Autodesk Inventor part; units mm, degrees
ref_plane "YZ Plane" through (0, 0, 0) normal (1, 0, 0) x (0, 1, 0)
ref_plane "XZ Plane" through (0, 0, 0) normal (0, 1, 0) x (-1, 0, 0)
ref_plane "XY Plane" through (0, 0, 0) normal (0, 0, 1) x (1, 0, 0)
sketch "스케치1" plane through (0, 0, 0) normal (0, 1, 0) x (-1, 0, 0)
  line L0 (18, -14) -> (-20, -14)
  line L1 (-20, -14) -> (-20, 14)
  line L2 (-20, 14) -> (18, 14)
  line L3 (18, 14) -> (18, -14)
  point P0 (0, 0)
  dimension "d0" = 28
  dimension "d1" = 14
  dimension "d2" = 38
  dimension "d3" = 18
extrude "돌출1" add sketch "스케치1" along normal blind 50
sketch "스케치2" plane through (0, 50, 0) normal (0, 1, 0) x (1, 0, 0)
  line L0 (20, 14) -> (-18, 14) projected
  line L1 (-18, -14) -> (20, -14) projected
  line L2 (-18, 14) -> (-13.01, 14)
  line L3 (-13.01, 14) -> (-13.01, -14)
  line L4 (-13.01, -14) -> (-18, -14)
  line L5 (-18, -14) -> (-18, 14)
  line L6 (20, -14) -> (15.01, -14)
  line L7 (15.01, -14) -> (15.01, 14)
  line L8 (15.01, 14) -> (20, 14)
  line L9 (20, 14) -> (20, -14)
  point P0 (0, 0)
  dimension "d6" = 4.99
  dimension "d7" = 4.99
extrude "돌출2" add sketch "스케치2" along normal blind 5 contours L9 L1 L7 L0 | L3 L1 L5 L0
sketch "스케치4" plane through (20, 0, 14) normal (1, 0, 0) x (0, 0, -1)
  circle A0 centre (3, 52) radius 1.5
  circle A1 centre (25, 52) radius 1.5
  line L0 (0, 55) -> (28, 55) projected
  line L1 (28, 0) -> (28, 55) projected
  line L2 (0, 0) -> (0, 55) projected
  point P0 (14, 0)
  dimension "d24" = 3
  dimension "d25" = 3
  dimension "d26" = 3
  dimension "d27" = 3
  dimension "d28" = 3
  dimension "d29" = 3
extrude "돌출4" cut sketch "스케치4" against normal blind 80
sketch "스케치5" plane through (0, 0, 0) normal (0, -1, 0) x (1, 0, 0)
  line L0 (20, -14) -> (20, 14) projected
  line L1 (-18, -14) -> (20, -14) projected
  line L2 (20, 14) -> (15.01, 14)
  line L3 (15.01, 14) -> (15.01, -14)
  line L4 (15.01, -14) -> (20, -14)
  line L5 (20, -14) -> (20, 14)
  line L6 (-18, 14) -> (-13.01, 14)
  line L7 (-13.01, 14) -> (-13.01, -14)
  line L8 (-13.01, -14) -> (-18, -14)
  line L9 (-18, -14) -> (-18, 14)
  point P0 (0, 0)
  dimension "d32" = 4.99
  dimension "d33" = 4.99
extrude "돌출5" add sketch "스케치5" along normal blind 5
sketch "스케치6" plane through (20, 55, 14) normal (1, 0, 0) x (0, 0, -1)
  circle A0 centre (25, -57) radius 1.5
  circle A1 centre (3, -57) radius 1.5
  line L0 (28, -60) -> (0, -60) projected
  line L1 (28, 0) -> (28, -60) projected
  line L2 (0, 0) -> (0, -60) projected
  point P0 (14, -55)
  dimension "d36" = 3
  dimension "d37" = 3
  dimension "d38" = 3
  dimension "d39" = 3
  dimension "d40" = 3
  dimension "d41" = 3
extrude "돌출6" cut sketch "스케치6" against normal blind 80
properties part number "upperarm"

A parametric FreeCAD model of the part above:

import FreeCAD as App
import Part
import Sketcher

V = App.Vector
Q = App.Units.Quantity

doc = App.newDocument("Part")
body = doc.addObject("PartDesign::Body", "Body")

# Sketch on XZ plane
sketch1 = body.newObject("Sketcher::SketchObject", "Sketch")
sketch1.AttachmentSupport = (doc.getObject("XZ_Plane"), [""])
sketch1.MapMode = "FlatFace"
sketch1.addGeometry(Part.LineSegment(V(20, -14, 0), V(-18, -14, 0)), False)
sketch1.addGeometry(Part.LineSegment(V(-18, -14, 0), V(-18, 14, 0)), False)
sketch1.addGeometry(Part.LineSegment(V(-18, 14, 0), V(20, 14, 0)), False)
sketch1.addGeometry(Part.LineSegment(V(20, 14, 0), V(20, -14, 0)), False)
sketch1.addConstraint(Sketcher.Constraint("Coincident", 0, 2, 1, 1))
sketch1.addConstraint(Sketcher.Constraint("Coincident", 1, 2, 2, 1))
sketch1.addConstraint(Sketcher.Constraint("Coincident", 2, 2, 3, 1))
sketch1.addConstraint(Sketcher.Constraint("Coincident", 3, 2, 0, 1))
sketch1.addConstraint(Sketcher.Constraint("Horizontal", 0))
sketch1.addConstraint(Sketcher.Constraint("Vertical", 1))
sketch1.addConstraint(Sketcher.Constraint("Horizontal", 2))
sketch1.addConstraint(Sketcher.Constraint("Vertical", 3))
sketch1.addConstraint(Sketcher.Constraint("DistanceX", 0, 2, 0, 1, Q("38 mm")))
sketch1.addConstraint(Sketcher.Constraint("DistanceY", 1, 1, 1, 2, Q("28 mm")))
sketch1.addConstraint(Sketcher.Constraint("DistanceX", 0, 2, -1, 1, Q("18 mm")))
sketch1.addConstraint(Sketcher.Constraint("DistanceY", 0, 2, -1, 1, Q("14 mm")))
pad1 = body.newObject("PartDesign::Pad", "Pad")
pad1.Profile = sketch1
pad1.Length = 50
pad1.Reversed = True

# Sketch on XZ plane
sketch2 = body.newObject("Sketcher::SketchObject", "Sketch001")
sketch2.AttachmentSupport = (doc.getObject("XZ_Plane"), [""])
sketch2.MapMode = "FlatFace"
sketch2.AttachmentOffset = App.Placement(V(0, 0, -50), App.Rotation())
sketch2.addGeometry(Part.LineSegment(V(20, 14, 0), V(20, -14, 0)), False)
sketch2.addGeometry(Part.LineSegment(V(20, -14, 0), V(15.01, -14, 0)), False)
sketch2.addGeometry(Part.LineSegment(V(15.01, -14, 0), V(15.01, 14, 0)), False)
sketch2.addGeometry(Part.LineSegment(V(15.01, 14, 0), V(20, 14, 0)), False)
sketch2.addGeometry(Part.LineSegment(V(-13.01, 14, 0), V(-13.01, -14, 0)), False)
sketch2.addGeometry(Part.LineSegment(V(-13.01, -14, 0), V(-18, -14, 0)), False)
sketch2.addGeometry(Part.LineSegment(V(-18, -14, 0), V(-18, 14, 0)), False)
sketch2.addGeometry(Part.LineSegment(V(-18, 14, 0), V(-13.01, 14, 0)), False)
sketch2.addConstraint(Sketcher.Constraint("Coincident", 0, 2, 1, 1))
sketch2.addConstraint(Sketcher.Constraint("Coincident", 1, 2, 2, 1))
sketch2.addConstraint(Sketcher.Constraint("Coincident", 2, 2, 3, 1))
sketch2.addConstraint(Sketcher.Constraint("Coincident", 3, 2, 0, 1))
sketch2.addConstraint(Sketcher.Constraint("Coincident", 4, 2, 5, 1))
sketch2.addConstraint(Sketcher.Constraint("Coincident", 5, 2, 6, 1))
sketch2.addConstraint(Sketcher.Constraint("Coincident", 6, 2, 7, 1))
sketch2.addConstraint(Sketcher.Constraint("Coincident", 7, 2, 4, 1))
sketch2.addConstraint(Sketcher.Constraint("Vertical", 0))
sketch2.addConstraint(Sketcher.Constraint("Horizontal", 1))
sketch2.addConstraint(Sketcher.Constraint("Vertical", 2))
sketch2.addConstraint(Sketcher.Constraint("Horizontal", 3))
sketch2.addConstraint(Sketcher.Constraint("Vertical", 4))
sketch2.addConstraint(Sketcher.Constraint("Horizontal", 5))
sketch2.addConstraint(Sketcher.Constraint("Vertical", 6))
sketch2.addConstraint(Sketcher.Constraint("Horizontal", 7))
sketch2.addConstraint(Sketcher.Constraint("Horizontal", 1, 2, 4, 2))
sketch2.addConstraint(Sketcher.Constraint("Horizontal", 3, 2, 6, 2))
sketch2.addConstraint(Sketcher.Constraint("Equal", 3, 5))
sketch2.addConstraint(Sketcher.Constraint("DistanceX", 1, 2, 1, 1, Q("4.99 mm")))
sketch2.addConstraint(Sketcher.Constraint("DistanceY", 0, 2, 0, 1, Q("28 mm")))
sketch2.addConstraint(Sketcher.Constraint("DistanceX", -1, 1, 0, 2, Q("20 mm")))
sketch2.addConstraint(Sketcher.Constraint("DistanceY", 0, 2, -1, 1, Q("14 mm")))
sketch2.addConstraint(Sketcher.Constraint("DistanceX", 5, 2, -1, 1, Q("18 mm")))
pad2 = body.newObject("PartDesign::Pad", "Pad001")
pad2.Profile = sketch2
pad2.Length = 5
pad2.Reversed = True

# Sketch on YZ plane
sketch3 = body.newObject("Sketcher::SketchObject", "Sketch002")
sketch3.AttachmentSupport = (doc.getObject("YZ_Plane"), [""])
sketch3.MapMode = "FlatFace"
sketch3.AttachmentOffset = App.Placement(V(0, 0, 20), App.Rotation())
sketch3.addGeometry(Part.Circle(V(52, 11, 0), V(0, 0, 1), 1.5), False)
sketch3.addGeometry(Part.Circle(V(52, -11, 0), V(0, 0, 1), 1.5), False)
sketch3.addConstraint(Sketcher.Constraint("Equal", 0, 1))
sketch3.addConstraint(Sketcher.Constraint("Symmetric", 0, 3, 1, 3, -1))
sketch3.addConstraint(Sketcher.Constraint("Diameter", 0, Q("3 mm")))
sketch3.addConstraint(Sketcher.Constraint("DistanceX", -1, 1, 0, 3, Q("52 mm")))
sketch3.addConstraint(Sketcher.Constraint("DistanceY", -1, 1, 0, 3, Q("11 mm")))
pocket1 = body.newObject("PartDesign::Pocket", "Pocket")
pocket1.Profile = sketch3
pocket1.Length = 80

# Sketch on XZ plane
sketch4 = body.newObject("Sketcher::SketchObject", "Sketch003")
sketch4.AttachmentSupport = (doc.getObject("XZ_Plane"), [""])
sketch4.MapMode = "FlatFace"
sketch4.addGeometry(Part.LineSegment(V(15.01, -14, 0), V(20, -14, 0)), False)
sketch4.addGeometry(Part.LineSegment(V(20, -14, 0), V(20, 14, 0)), False)
sketch4.addGeometry(Part.LineSegment(V(20, 14, 0), V(15.01, 14, 0)), False)
sketch4.addGeometry(Part.LineSegment(V(15.01, 14, 0), V(15.01, -14, 0)), False)
sketch4.addGeometry(Part.LineSegment(V(-18, -14, 0), V(-13.01, -14, 0)), False)
sketch4.addGeometry(Part.LineSegment(V(-13.01, -14, 0), V(-13.01, 14, 0)), False)
sketch4.addGeometry(Part.LineSegment(V(-13.01, 14, 0), V(-18, 14, 0)), False)
sketch4.addGeometry(Part.LineSegment(V(-18, 14, 0), V(-18, -14, 0)), False)
sketch4.addConstraint(Sketcher.Constraint("Coincident", 0, 2, 1, 1))
sketch4.addConstraint(Sketcher.Constraint("Coincident", 1, 2, 2, 1))
sketch4.addConstraint(Sketcher.Constraint("Coincident", 2, 2, 3, 1))
sketch4.addConstraint(Sketcher.Constraint("Coincident", 3, 2, 0, 1))
sketch4.addConstraint(Sketcher.Constraint("Coincident", 4, 2, 5, 1))
sketch4.addConstraint(Sketcher.Constraint("Coincident", 5, 2, 6, 1))
sketch4.addConstraint(Sketcher.Constraint("Coincident", 6, 2, 7, 1))
sketch4.addConstraint(Sketcher.Constraint("Coincident", 7, 2, 4, 1))
sketch4.addConstraint(Sketcher.Constraint("Horizontal", 0))
sketch4.addConstraint(Sketcher.Constraint("Vertical", 1))
sketch4.addConstraint(Sketcher.Constraint("Horizontal", 2))
sketch4.addConstraint(Sketcher.Constraint("Vertical", 3))
sketch4.addConstraint(Sketcher.Constraint("Horizontal", 4))
sketch4.addConstraint(Sketcher.Constraint("Vertical", 5))
sketch4.addConstraint(Sketcher.Constraint("Horizontal", 6))
sketch4.addConstraint(Sketcher.Constraint("Vertical", 7))
sketch4.addConstraint(Sketcher.Constraint("Horizontal", 3, 2, 4, 2))
sketch4.addConstraint(Sketcher.Constraint("Horizontal", 2, 2, 5, 2))
sketch4.addConstraint(Sketcher.Constraint("Equal", 2, 4))
sketch4.addConstraint(Sketcher.Constraint("DistanceX", 0, 1, 0, 2, Q("4.99 mm")))
sketch4.addConstraint(Sketcher.Constraint("DistanceY", 1, 1, 1, 2, Q("28 mm")))
sketch4.addConstraint(Sketcher.Constraint("DistanceX", -1, 1, 0, 2, Q("20 mm")))
sketch4.addConstraint(Sketcher.Constraint("DistanceY", 0, 2, -1, 1, Q("14 mm")))
sketch4.addConstraint(Sketcher.Constraint("DistanceX", 6, 2, -1, 1, Q("18 mm")))
pad3 = body.newObject("PartDesign::Pad", "Pad002")
pad3.Profile = sketch4
pad3.Length = 5

# Sketch on YZ plane
sketch5 = body.newObject("Sketcher::SketchObject", "Sketch004")
sketch5.AttachmentSupport = (doc.getObject("YZ_Plane"), [""])
sketch5.MapMode = "FlatFace"
sketch5.AttachmentOffset = App.Placement(V(0, 0, 20), App.Rotation())
sketch5.addGeometry(Part.Circle(V(-2, -11, 0), V(0, 0, 1), 1.5), False)
sketch5.addGeometry(Part.Circle(V(-2, 11, 0), V(0, 0, 1), 1.5), False)
sketch5.addConstraint(Sketcher.Constraint("Equal", 0, 1))
sketch5.addConstraint(Sketcher.Constraint("Symmetric", 0, 3, 1, 3, -1))
sketch5.addConstraint(Sketcher.Constraint("Diameter", 0, Q("3 mm")))
sketch5.addConstraint(Sketcher.Constraint("DistanceX", 0, 3, -1, 1, Q("2 mm")))
sketch5.addConstraint(Sketcher.Constraint("DistanceY", 0, 3, -1, 1, Q("11 mm")))
pocket2 = body.newObject("PartDesign::Pocket", "Pocket001")
pocket2.Profile = sketch5
pocket2.Length = 80

doc.recompute()
